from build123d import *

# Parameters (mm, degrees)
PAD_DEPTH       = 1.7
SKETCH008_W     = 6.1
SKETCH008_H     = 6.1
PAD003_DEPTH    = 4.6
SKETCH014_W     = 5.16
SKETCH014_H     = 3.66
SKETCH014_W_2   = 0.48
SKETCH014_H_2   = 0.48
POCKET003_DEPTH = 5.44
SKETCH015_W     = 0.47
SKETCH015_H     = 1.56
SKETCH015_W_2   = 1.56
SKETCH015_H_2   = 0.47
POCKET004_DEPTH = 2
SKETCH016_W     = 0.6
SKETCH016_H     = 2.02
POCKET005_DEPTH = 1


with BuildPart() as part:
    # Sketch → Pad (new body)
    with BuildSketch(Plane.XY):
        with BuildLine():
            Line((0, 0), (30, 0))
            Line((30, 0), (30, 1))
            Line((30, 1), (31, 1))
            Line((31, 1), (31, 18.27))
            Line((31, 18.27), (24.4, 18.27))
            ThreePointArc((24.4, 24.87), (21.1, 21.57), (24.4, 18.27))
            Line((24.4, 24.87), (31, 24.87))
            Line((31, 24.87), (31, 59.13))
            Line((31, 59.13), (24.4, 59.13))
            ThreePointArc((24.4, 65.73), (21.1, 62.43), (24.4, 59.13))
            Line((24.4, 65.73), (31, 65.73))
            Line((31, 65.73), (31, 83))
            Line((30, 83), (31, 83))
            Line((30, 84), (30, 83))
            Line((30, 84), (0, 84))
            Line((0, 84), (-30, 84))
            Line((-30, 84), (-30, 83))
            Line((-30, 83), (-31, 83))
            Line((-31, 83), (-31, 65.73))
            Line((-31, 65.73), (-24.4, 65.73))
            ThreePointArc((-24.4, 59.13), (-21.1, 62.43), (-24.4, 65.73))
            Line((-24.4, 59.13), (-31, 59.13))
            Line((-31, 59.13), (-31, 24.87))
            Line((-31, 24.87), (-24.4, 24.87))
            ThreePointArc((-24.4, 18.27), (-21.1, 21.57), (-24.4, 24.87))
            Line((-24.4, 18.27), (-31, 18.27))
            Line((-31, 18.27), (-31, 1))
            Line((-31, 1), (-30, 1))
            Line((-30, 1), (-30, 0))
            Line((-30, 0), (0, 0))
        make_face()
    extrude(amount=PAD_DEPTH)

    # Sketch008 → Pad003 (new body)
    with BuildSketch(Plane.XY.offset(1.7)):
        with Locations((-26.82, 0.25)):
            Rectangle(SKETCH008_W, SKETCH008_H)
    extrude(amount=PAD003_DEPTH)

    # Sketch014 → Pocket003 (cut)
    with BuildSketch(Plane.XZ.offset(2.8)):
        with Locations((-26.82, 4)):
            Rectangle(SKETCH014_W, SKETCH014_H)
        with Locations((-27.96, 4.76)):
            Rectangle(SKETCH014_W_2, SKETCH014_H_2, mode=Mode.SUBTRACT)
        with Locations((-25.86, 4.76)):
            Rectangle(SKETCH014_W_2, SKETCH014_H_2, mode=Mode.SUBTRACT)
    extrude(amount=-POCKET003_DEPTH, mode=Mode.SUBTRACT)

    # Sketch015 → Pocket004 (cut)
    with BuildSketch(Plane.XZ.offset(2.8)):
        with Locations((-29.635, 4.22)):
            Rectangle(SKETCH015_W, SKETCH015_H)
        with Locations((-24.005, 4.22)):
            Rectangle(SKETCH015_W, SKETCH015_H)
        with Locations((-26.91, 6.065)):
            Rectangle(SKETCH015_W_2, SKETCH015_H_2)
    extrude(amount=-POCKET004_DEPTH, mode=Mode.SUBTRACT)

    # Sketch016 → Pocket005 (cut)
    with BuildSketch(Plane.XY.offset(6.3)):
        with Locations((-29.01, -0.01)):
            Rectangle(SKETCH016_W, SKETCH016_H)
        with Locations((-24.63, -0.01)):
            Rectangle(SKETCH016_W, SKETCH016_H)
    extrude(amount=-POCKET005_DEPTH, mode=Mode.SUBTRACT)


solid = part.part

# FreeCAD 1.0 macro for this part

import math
import FreeCAD as App
import Part
import Sketcher
Q = App.Units.Quantity


def add_polygon(sketch, points):
    """Adds a closed chain of lines whose ends are joined by coincident constraints."""
    first, n = sketch.GeometryCount, len(points)
    for a, b in zip(points, points[1:] + points[:1]):
        sketch.addGeometry(Part.LineSegment(App.Vector(*a, 0), App.Vector(*b, 0)), False)
    for i in range(n):
        sketch.addConstraint(Sketcher.Constraint("Coincident", first + i, 2, first + (i + 1) % n, 1))

doc = App.newDocument("Part")
body = doc.addObject("PartDesign::Body", "Body")

sketch1 = doc.addObject("Sketcher::SketchObject", "Sketch")
body.addObject(sketch1)
sketch1.AttachmentSupport = (doc.XY_Plane, [""])
sketch1.MapMode = "FlatFace"
sketch1.addGeometry(Part.LineSegment(App.Vector(30, 0, 0), App.Vector(30, 1, 0)), False)
sketch1.addGeometry(Part.LineSegment(App.Vector(30, 1, 0), App.Vector(31, 1, 0)), False)
sketch1.addGeometry(Part.LineSegment(App.Vector(31, 1, 0), App.Vector(31, 18.3, 0)), False)
sketch1.addGeometry(Part.LineSegment(App.Vector(31, 18.3, 0), App.Vector(24.4, 18.3, 0)), False)
sketch1.addGeometry(Part.ArcOfCircle(Part.Circle(App.Vector(24.4, 21.6, 0), App.Vector(0, 0, 1), 3.3), math.radians(90), math.radians(270)), False)
sketch1.addGeometry(Part.LineSegment(App.Vector(24.4, 24.9, 0), App.Vector(31, 24.9, 0)), False)
sketch1.addGeometry(Part.LineSegment(App.Vector(31, 24.9, 0), App.Vector(31, 59.1, 0)), False)
sketch1.addGeometry(Part.LineSegment(App.Vector(31, 59.1, 0), App.Vector(24.4, 59.1, 0)), False)
sketch1.addGeometry(Part.ArcOfCircle(Part.Circle(App.Vector(24.4, 62.4, 0), App.Vector(0, 0, 1), 3.3), math.radians(90), math.radians(270)), False)
sketch1.addGeometry(Part.LineSegment(App.Vector(24.4, 65.7, 0), App.Vector(31, 65.7, 0)), False)
sketch1.addGeometry(Part.LineSegment(App.Vector(31, 65.7, 0), App.Vector(31, 83, 0)), False)
sketch1.addGeometry(Part.LineSegment(App.Vector(31, 83, 0), App.Vector(30, 83, 0)), False)
sketch1.addGeometry(Part.LineSegment(App.Vector(30, 83, 0), App.Vector(30, 84, 0)), False)
sketch1.addGeometry(Part.LineSegment(App.Vector(30, 84, 0), App.Vector(-30, 84, 0)), False)
sketch1.addGeometry(Part.LineSegment(App.Vector(-30, 84, 0), App.Vector(-30, 83, 0)), False)
sketch1.addGeometry(Part.LineSegment(App.Vector(-30, 83, 0), App.Vector(-31, 83, 0)), False)
sketch1.addGeometry(Part.LineSegment(App.Vector(-31, 83, 0), App.Vector(-31, 65.7, 0)), False)
sketch1.addGeometry(Part.LineSegment(App.Vector(-31, 65.7, 0), App.Vector(-24.4, 65.7, 0)), False)
sketch1.addGeometry(Part.ArcOfCircle(Part.Circle(App.Vector(-24.4, 62.4, 0), App.Vector(0, 0, 1), 3.3), math.radians(-90), math.radians(90)), False)
sketch1.addGeometry(Part.LineSegment(App.Vector(-24.4, 59.1, 0), App.Vector(-31, 59.1, 0)), False)
sketch1.addGeometry(Part.LineSegment(App.Vector(-31, 59.1, 0), App.Vector(-31, 24.9, 0)), False)
sketch1.addGeometry(Part.LineSegment(App.Vector(-31, 24.9, 0), App.Vector(-24.4, 24.9, 0)), False)
sketch1.addGeometry(Part.ArcOfCircle(Part.Circle(App.Vector(-24.4, 21.6, 0), App.Vector(0, 0, 1), 3.3), math.radians(-90), math.radians(90)), False)
sketch1.addGeometry(Part.LineSegment(App.Vector(-24.4, 18.3, 0), App.Vector(-31, 18.3, 0)), False)
sketch1.addGeometry(Part.LineSegment(App.Vector(-31, 18.3, 0), App.Vector(-31, 1, 0)), False)
sketch1.addGeometry(Part.LineSegment(App.Vector(-31, 1, 0), App.Vector(-30, 1, 0)), False)
sketch1.addGeometry(Part.LineSegment(App.Vector(-30, 1, 0), App.Vector(-30, 0, 0)), False)
sketch1.addGeometry(Part.LineSegment(App.Vector(-30, 0, 0), App.Vector(30, 0, 0)), False)
sketch1.addConstraint(Sketcher.Constraint("Coincident", 0, 2, 1, 1))
sketch1.addConstraint(Sketcher.Constraint("Coincident", 1, 2, 2, 1))
sketch1.addConstraint(Sketcher.Constraint("Coincident", 2, 2, 3, 1))
sketch1.addConstraint(Sketcher.Constraint("Tangent", 3, 2, 4, 2))
sketch1.addConstraint(Sketcher.Constraint("Tangent", 4, 1, 5, 1))
sketch1.addConstraint(Sketcher.Constraint("Coincident", 5, 2, 6, 1))
sketch1.addConstraint(Sketcher.Constraint("Coincident", 6, 2, 7, 1))
sketch1.addConstraint(Sketcher.Constraint("Tangent", 7, 2, 8, 2))
sketch1.addConstraint(Sketcher.Constraint("Tangent", 8, 1, 9, 1))
sketch1.addConstraint(Sketcher.Constraint("Coincident", 9, 2, 10, 1))
sketch1.addConstraint(Sketcher.Constraint("Coincident", 10, 2, 11, 1))
sketch1.addConstraint(Sketcher.Constraint("Coincident", 11, 2, 12, 1))
sketch1.addConstraint(Sketcher.Constraint("Coincident", 12, 2, 13, 1))
sketch1.addConstraint(Sketcher.Constraint("Coincident", 13, 2, 14, 1))
sketch1.addConstraint(Sketcher.Constraint("Coincident", 14, 2, 15, 1))
sketch1.addConstraint(Sketcher.Constraint("Coincident", 15, 2, 16, 1))
sketch1.addConstraint(Sketcher.Constraint("Coincident", 16, 2, 17, 1))
sketch1.addConstraint(Sketcher.Constraint("Tangent", 17, 2, 18, 2))
sketch1.addConstraint(Sketcher.Constraint("Tangent", 18, 1, 19, 1))
sketch1.addConstraint(Sketcher.Constraint("Coincident", 19, 2, 20, 1))
sketch1.addConstraint(Sketcher.Constraint("Coincident", 20, 2, 21, 1))
sketch1.addConstraint(Sketcher.Constraint("Tangent", 21, 2, 22, 2))
sketch1.addConstraint(Sketcher.Constraint("Tangent", 22, 1, 23, 1))
sketch1.addConstraint(Sketcher.Constraint("Coincident", 23, 2, 24, 1))
sketch1.addConstraint(Sketcher.Constraint("Coincident", 24, 2, 25, 1))
sketch1.addConstraint(Sketcher.Constraint("Coincident", 25, 2, 26, 1))
sketch1.addConstraint(Sketcher.Constraint("Coincident", 26, 2, 27, 1))
sketch1.addConstraint(Sketcher.Constraint("Coincident", 27, 2, 0, 1))
sketch1.addConstraint(Sketcher.Constraint("Vertical", 0))
sketch1.addConstraint(Sketcher.Constraint("Horizontal", 1))
sketch1.addConstraint(Sketcher.Constraint("Vertical", 2))
sketch1.addConstraint(Sketcher.Constraint("Horizontal", 3))
sketch1.addConstraint(Sketcher.Constraint("Horizontal", 5))
sketch1.addConstraint(Sketcher.Constraint("Vertical", 6))
sketch1.addConstraint(Sketcher.Constraint("Horizontal", 7))
sketch1.addConstraint(Sketcher.Constraint("Horizontal", 9))
sketch1.addConstraint(Sketcher.Constraint("Vertical", 10))
sketch1.addConstraint(Sketcher.Constraint("Horizontal", 11))
sketch1.addConstraint(Sketcher.Constraint("Vertical", 12))
sketch1.addConstraint(Sketcher.Constraint("Horizontal", 13))
sketch1.addConstraint(Sketcher.Constraint("Vertical", 14))
sketch1.addConstraint(Sketcher.Constraint("Horizontal", 15))
sketch1.addConstraint(Sketcher.Constraint("Vertical", 16))
sketch1.addConstraint(Sketcher.Constraint("Horizontal", 17))
sketch1.addConstraint(Sketcher.Constraint("Horizontal", 19))
sketch1.addConstraint(Sketcher.Constraint("Vertical", 20))
sketch1.addConstraint(Sketcher.Constraint("Horizontal", 21))
sketch1.addConstraint(Sketcher.Constraint("Horizontal", 23))
sketch1.addConstraint(Sketcher.Constraint("Vertical", 24))
sketch1.addConstraint(Sketcher.Constraint("Horizontal", 25))
sketch1.addConstraint(Sketcher.Constraint("Vertical", 26))
sketch1.addConstraint(Sketcher.Constraint("Horizontal", 27))
sketch1.addConstraint(Sketcher.Constraint("Equal", 4, 8))
sketch1.addConstraint(Sketcher.Constraint("Equal", 8, 18))
sketch1.addConstraint(Sketcher.Constraint("Equal", 18, 22))
sketch1.addConstraint(Sketcher.Constraint("Symmetric", 26, 2, 27, 2, -1, 1))
sketch1.addConstraint(Sketcher.Constraint("Symmetric", 8, 3, 18, 3, -2))
sketch1.addConstraint(Sketcher.Constraint("Symmetric", 4, 3, 22, 3, -2))
sketch1.addConstraint(Sketcher.Constraint("Symmetric", 11, 2, 14, 2, -2))
sketch1.addConstraint(Sketcher.Constraint("Symmetric", 1, 2, 24, 2, -2))
sketch1.addConstraint(Sketcher.Constraint("Vertical", 4, 3, 8, 3))
sketch1.addConstraint(Sketcher.Constraint("Vertical", 2, 2, 5, 2))
sketch1.addConstraint(Sketcher.Constraint("Vertical", 6, 2, 9, 2))
sketch1.addConstraint(Sketcher.Constraint("Vertical", 0, 2, 11, 2))
sketch1.addConstraint(Sketcher.Constraint("Vertical", 16, 2, 19, 2))
sketch1.addConstraint(Sketcher.Constraint("Vertical", 20, 2, 23, 2))
sketch1.addConstraint(Sketcher.Constraint("Equal", 25, 0))
sketch1.addConstraint(Sketcher.Constraint("Equal", 2, 10))
sketch1.addConstraint(Sketcher.Constraint("Equal", 0, 12))
sketch1.addConstraint(Sketcher.Constraint("Radius", 4, Q("3.3 mm")))
sketch1.addConstraint(Sketcher.Constraint("DistanceX", 1, 1, 1, 2, Q("1 mm")))
sketch1.addConstraint(Sketcher.Constraint("DistanceX", 13, 2, 13, 1, Q("60 mm")))
sketch1.addConstraint(Sketcher.Constraint("DistanceX", 3, 2, 3, 1, Q("6.6 mm")))
sketch1.addConstraint(Sketcher.Constraint("DistanceY", -1, 1, 10, 2, Q("83 mm")))
sketch1.addConstraint(Sketcher.Constraint("DistanceY", 2, 1, 2, 2, Q("17.27 mm")))
pad1 = doc.addObject("PartDesign::Pad", "Pad")
body.addObject(pad1)
pad1.Profile = sketch1
pad1.Length = 1.7

sketch2 = doc.addObject("Sketcher::SketchObject", "Sketch001")
body.addObject(sketch2)
sketch2.AttachmentSupport = (doc.XY_Plane, [""])
sketch2.MapMode = "FlatFace"
sketch2.AttachmentOffset = App.Placement(App.Vector(0, 0, 1.7), App.Rotation())
add_polygon(sketch2, [(-30, 3), (-30, -3), (-24, -3), (-24, 3)])
sketch2.addConstraint(Sketcher.Constraint("Vertical", 0))
sketch2.addConstraint(Sketcher.Constraint("Horizontal", 1))
sketch2.addConstraint(Sketcher.Constraint("Vertical", 2))
sketch2.addConstraint(Sketcher.Constraint("Horizontal", 3))
sketch2.addConstraint(Sketcher.Constraint("Equal", 3, 0))
sketch2.addConstraint(Sketcher.Constraint("DistanceX", 1, 1, 1, 2, Q("6.1 mm")))
sketch2.addConstraint(Sketcher.Constraint("DistanceY", 0, 2, -1, 1, Q("2.8 mm")))
sketch2.addConstraint(Sketcher.Constraint("DistanceX", 0, 2, -1, 1, Q("29.87 mm")))
pad2 = doc.addObject("PartDesign::Pad", "Pad001")
body.addObject(pad2)
pad2.Profile = sketch2
pad2.Length = 4.6

sketch3 = doc.addObject("Sketcher::SketchObject", "Sketch002")
body.addObject(sketch3)
sketch3.AttachmentSupport = (doc.XZ_Plane, [""])
sketch3.MapMode = "FlatFace"
sketch3.AttachmentOffset = App.Placement(App.Vector(0, 0, 2.8), App.Rotation())
add_polygon(sketch3, [(-29.4, 5.83), (-29.4, 2.17), (-24.24, 2.17), (-24.24, 5.83)])
add_polygon(sketch3, [(-27.72, 4.52), (-28.2, 4.52), (-28.2, 5), (-27.72, 5)])
add_polygon(sketch3, [(-25.62, 4.52), (-26.1, 4.52), (-26.1, 5), (-25.62, 5)])
sketch3.addConstraint(Sketcher.Constraint("Vertical", 0))
sketch3.addConstraint(Sketcher.Constraint("Horizontal", 1))
sketch3.addConstraint(Sketcher.Constraint("Vertical", 2))
sketch3.addConstraint(Sketcher.Constraint("Horizontal", 3))
sketch3.addConstraint(Sketcher.Constraint("Horizontal", 4))
sketch3.addConstraint(Sketcher.Constraint("Vertical", 5))
sketch3.addConstraint(Sketcher.Constraint("Horizontal", 6))
sketch3.addConstraint(Sketcher.Constraint("Vertical", 7))
sketch3.addConstraint(Sketcher.Constraint("Horizontal", 8))
sketch3.addConstraint(Sketcher.Constraint("Vertical", 9))
sketch3.addConstraint(Sketcher.Constraint("Horizontal", 10))
sketch3.addConstraint(Sketcher.Constraint("Vertical", 11))
sketch3.addConstraint(Sketcher.Constraint("Horizontal", 7, 2, 8, 2))
sketch3.addConstraint(Sketcher.Constraint("Horizontal", 6, 2, 9, 2))
sketch3.addConstraint(Sketcher.Constraint("Equal", 6, 8))
sketch3.addConstraint(Sketcher.Constraint("Equal", 10, 5))
sketch3.addConstraint(Sketcher.Constraint("DistanceY", -1, 1, 5, 2, Q("5 mm")))
sketch3.addConstraint(Sketcher.Constraint("DistanceX", 1, 1, 1, 2, Q("5.16 mm")))
sketch3.addConstraint(Sketcher.Constraint("DistanceX", 4, 2, 4, 1, Q("0.48 mm")))
sketch3.addConstraint(Sketcher.Constraint("DistanceY", 0, 2, 0, 1, Q("3.66 mm")))
sketch3.addConstraint(Sketcher.Constraint("DistanceX", 0, 2, -1, 1, Q("29.4 mm")))
sketch3.addConstraint(Sketcher.Constraint("DistanceX", 4, 2, -1, 1, Q("28.2 mm")))
sketch3.addConstraint(Sketcher.Constraint("DistanceX", 8, 2, -1, 1, Q("26.1 mm")))
sketch3.addConstraint(Sketcher.Constraint("DistanceY", -1, 1, 0, 2, Q("2.17 mm")))
pocket1 = doc.addObject("PartDesign::Pocket", "Pocket")
body.addObject(pocket1)
pocket1.Profile = sketch3
pocket1.Length = 5.44

sketch4 = doc.addObject("Sketcher::SketchObject", "Sketch003")
body.addObject(sketch4)
sketch4.AttachmentSupport = (doc.XZ_Plane, [""])
sketch4.MapMode = "FlatFace"
sketch4.AttachmentOffset = App.Placement(App.Vector(0, 0, 2.8), App.Rotation())
add_polygon(sketch4, [(-29.87, 5), (-29.87, 3.44), (-29.4, 3.44), (-29.4, 5)])
add_polygon(sketch4, [(-24.24, 5), (-24.24, 3.44), (-23.77, 3.44), (-23.77, 5)])
add_polygon(sketch4, [(-27.69, 6.3), (-27.69, 5.83), (-26.13, 5.83), (-26.13, 6.3)])
sketch4.addConstraint(Sketcher.Constraint("Vertical", 0))
sketch4.addConstraint(Sketcher.Constraint("Horizontal", 1))
sketch4.addConstraint(Sketcher.Constraint("Vertical", 2))
sketch4.addConstraint(Sketcher.Constraint("Horizontal", 3))
sketch4.addConstraint(Sketcher.Constraint("Vertical", 4))
sketch4.addConstraint(Sketcher.Constraint("Horizontal", 5))
sketch4.addConstraint(Sketcher.Constraint("Vertical", 6))
sketch4.addConstraint(Sketcher.Constraint("Horizontal", 7))
sketch4.addConstraint(Sketcher.Constraint("Vertical", 8))
sketch4.addConstraint(Sketcher.Constraint("Horizontal", 9))
sketch4.addConstraint(Sketcher.Constraint("Vertical", 10))
sketch4.addConstraint(Sketcher.Constraint("Horizontal", 11))
sketch4.addConstraint(Sketcher.Constraint("Horizontal", 1, 2, 4, 2))
sketch4.addConstraint(Sketcher.Constraint("Horizontal", 3, 2, 6, 2))
sketch4.addConstraint(Sketcher.Constraint("Equal", 3, 5))
sketch4.addConstraint(Sketcher.Constraint("Equal", 11, 0))
sketch4.addConstraint(Sketcher.Constraint("Equal", 7, 8))
sketch4.addConstraint(Sketcher.Constraint("DistanceY", -1, 1, 2, 2, Q("5 mm")))
sketch4.addConstraint(Sketcher.Constraint("DistanceX", 1, 1, 1, 2, Q("0.47 mm")))
sketch4.addConstraint(Sketcher.Constraint("DistanceX", 9, 1, 9, 2, Q("1.56 mm")))
sketch4.addConstraint(Sketcher.Constraint("DistanceX", 1, 2, -1, 1, Q("29.4 mm")))
sketch4.addConstraint(Sketcher.Constraint("DistanceY", -1, 1, 10, 2, Q("6.3 mm")))
sketch4.addConstraint(Sketcher.Constraint("DistanceX", 0, 2, 5, 2, Q("6.1 mm")))
sketch4.addConstraint(Sketcher.Constraint("DistanceX", 8, 2, -1, 1, Q("27.69 mm")))
pocket2 = doc.addObject("PartDesign::Pocket", "Pocket001")
body.addObject(pocket2)
pocket2.Profile = sketch4
pocket2.Length = 2

sketch5 = doc.addObject("Sketcher::SketchObject", "Sketch004")
body.addObject(sketch5)
sketch5.AttachmentSupport = (doc.XY_Plane, [""])
sketch5.MapMode = "FlatFace"
sketch5.AttachmentOffset = App.Placement(App.Vector(0, 0, 6.3), App.Rotation())
add_polygon(sketch5, [(-29.3, 1), (-29.3, -1), (-28.7, -1), (-28.7, 1)])
add_polygon(sketch5, [(-24.9, 1), (-24.9, -1), (-24.3, -1), (-24.3, 1)])
sketch5.addConstraint(Sketcher.Constraint("Vertical", 0))
sketch5.addConstraint(Sketcher.Constraint("Horizontal", 1))
sketch5.addConstraint(Sketcher.Constraint("Vertical", 2))
sketch5.addConstraint(Sketcher.Constraint("Horizontal", 3))
sketch5.addConstraint(Sketcher.Constraint("Vertical", 4))
sketch5.addConstraint(Sketcher.Constraint("Horizontal", 5))
sketch5.addConstraint(Sketcher.Constraint("Vertical", 6))
sketch5.addConstraint(Sketcher.Constraint("Horizontal", 7))
sketch5.addConstraint(Sketcher.Constraint("Horizontal", 1, 2, 4, 2))
sketch5.addConstraint(Sketcher.Constraint("Horizontal", 3, 2, 6, 2))
sketch5.addConstraint(Sketcher.Constraint("Equal", 3, 5))
sketch5.addConstraint(Sketcher.Constraint("DistanceX", 1, 1, 1, 2, Q("0.6 mm")))
sketch5.addConstraint(Sketcher.Constraint("DistanceY", -1, 1, 2, 2, Q("1 mm")))
sketch5.addConstraint(Sketcher.Constraint("DistanceY", 0, 2, 0, 1, Q("2.02 mm")))
sketch5.addConstraint(Sketcher.Constraint("DistanceX", 0, 2, -1, 1, Q("29.31 mm")))
sketch5.addConstraint(Sketcher.Constraint("DistanceX", 4, 2, -1, 1, Q("24.93 mm")))
pocket3 = doc.addObject("PartDesign::Pocket", "Pocket002")
body.addObject(pocket3)
pocket3.Profile = sketch5
pocket3.Length = 1

doc.recompute()
